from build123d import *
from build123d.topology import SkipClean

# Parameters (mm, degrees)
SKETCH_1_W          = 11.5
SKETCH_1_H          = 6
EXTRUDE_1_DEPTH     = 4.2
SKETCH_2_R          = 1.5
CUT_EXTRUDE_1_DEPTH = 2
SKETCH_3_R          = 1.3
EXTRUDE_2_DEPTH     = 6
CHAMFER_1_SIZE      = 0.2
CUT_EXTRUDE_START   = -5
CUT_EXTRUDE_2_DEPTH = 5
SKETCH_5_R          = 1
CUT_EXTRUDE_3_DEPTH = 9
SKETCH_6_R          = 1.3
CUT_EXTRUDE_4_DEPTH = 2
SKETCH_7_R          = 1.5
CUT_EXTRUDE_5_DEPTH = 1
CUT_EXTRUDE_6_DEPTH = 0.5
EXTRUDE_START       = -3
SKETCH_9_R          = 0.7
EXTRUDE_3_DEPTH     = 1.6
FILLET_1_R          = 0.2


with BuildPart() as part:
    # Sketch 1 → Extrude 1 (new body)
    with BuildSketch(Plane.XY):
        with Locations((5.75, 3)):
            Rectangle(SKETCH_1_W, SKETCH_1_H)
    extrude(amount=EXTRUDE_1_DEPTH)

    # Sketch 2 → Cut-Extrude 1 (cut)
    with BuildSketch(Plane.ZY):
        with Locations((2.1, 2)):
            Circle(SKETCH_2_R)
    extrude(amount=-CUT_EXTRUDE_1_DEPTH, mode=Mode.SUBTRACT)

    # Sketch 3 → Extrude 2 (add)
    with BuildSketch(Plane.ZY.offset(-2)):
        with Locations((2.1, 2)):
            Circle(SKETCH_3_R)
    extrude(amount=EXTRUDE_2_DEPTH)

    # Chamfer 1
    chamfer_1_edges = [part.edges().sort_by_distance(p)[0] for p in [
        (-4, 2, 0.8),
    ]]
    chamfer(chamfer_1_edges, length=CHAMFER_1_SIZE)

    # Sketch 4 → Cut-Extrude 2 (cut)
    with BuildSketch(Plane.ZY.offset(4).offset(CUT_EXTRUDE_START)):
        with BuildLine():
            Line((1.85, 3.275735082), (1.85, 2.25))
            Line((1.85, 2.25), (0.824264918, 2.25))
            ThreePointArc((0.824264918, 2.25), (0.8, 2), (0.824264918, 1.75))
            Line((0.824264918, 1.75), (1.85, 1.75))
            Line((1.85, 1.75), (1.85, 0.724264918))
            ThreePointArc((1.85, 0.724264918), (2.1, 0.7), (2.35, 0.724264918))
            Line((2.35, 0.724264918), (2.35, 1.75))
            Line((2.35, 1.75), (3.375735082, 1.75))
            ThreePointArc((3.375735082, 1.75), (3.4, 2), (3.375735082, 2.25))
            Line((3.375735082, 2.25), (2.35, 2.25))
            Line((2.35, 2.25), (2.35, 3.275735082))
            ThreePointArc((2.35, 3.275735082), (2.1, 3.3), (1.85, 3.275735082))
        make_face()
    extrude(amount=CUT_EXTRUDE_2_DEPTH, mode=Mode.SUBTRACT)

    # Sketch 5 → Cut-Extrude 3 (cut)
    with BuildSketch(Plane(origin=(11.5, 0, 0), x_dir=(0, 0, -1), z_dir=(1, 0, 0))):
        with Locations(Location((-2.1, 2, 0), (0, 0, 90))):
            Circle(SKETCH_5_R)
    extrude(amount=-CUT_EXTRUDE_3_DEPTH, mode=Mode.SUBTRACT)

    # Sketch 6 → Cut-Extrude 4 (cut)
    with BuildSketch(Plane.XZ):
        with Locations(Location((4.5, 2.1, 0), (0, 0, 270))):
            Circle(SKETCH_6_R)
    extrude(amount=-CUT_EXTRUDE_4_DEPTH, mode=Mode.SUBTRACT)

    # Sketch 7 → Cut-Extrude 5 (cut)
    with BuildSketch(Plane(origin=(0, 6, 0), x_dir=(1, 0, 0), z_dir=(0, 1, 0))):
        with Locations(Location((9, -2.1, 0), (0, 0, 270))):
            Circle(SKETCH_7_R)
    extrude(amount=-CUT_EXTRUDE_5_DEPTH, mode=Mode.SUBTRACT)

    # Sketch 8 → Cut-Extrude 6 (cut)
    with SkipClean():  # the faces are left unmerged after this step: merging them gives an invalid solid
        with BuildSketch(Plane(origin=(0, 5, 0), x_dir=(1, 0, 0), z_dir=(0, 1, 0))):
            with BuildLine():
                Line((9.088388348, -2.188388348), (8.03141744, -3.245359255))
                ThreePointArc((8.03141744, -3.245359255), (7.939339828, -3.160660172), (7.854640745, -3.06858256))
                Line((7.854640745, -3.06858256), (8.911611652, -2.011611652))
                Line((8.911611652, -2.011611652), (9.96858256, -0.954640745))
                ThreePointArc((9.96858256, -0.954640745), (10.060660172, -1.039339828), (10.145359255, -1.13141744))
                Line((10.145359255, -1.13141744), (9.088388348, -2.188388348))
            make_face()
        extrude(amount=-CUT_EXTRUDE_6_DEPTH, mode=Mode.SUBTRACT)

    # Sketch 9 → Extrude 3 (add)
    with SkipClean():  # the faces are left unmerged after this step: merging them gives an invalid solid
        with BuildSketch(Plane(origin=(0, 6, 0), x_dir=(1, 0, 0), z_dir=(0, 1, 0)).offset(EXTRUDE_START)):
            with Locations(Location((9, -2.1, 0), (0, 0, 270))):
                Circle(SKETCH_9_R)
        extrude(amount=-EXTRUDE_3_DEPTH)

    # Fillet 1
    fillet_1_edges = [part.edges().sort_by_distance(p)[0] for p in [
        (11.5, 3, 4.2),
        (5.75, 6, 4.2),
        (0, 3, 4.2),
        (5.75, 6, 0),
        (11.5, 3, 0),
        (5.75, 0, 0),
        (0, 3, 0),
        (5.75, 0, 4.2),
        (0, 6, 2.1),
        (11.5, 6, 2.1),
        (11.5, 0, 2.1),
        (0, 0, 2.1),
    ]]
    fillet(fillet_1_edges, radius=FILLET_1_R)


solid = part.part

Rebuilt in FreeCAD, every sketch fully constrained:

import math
import FreeCAD as App
import Part
import Sketcher

V = App.Vector
Q = App.Units.Quantity


def edges_at(feature, points):
    """Names of the edges that pass closest to the given points."""
    edges = feature.Shape.Edges
    near = lambda p: min(range(len(edges)), key=lambda i: edges[i].distToShape(Part.Vertex(*p))[0])
    return sorted({f"Edge{near(p) + 1}" for p in points})


def add_polygon(sketch, points):
    """Adds a closed chain of lines whose ends are joined by coincident constraints."""
    first, n = sketch.GeometryCount, len(points)
    for a, b in zip(points, points[1:] + points[:1]):
        sketch.addGeometry(Part.LineSegment(App.Vector(*a, 0), App.Vector(*b, 0)), False)
    for i in range(n):
        sketch.addConstraint(Sketcher.Constraint("Coincident", first + i, 2, first + (i + 1) % n, 1))

doc = App.newDocument("Part")
body = doc.addObject("PartDesign::Body", "Body")

# Sketch on XY plane
sketch1 = doc.addObject("Sketcher::SketchObject", "Sketch")
body.addObject(sketch1)
sketch1.AttachmentSupport = (doc.XY_Plane, [""])
sketch1.MapMode = "FlatFace"
add_polygon(sketch1, [(0, 6), (0, 0), (12, 0), (12, 6)])  # lines 0-3
sketch1.addConstraint([
    Sketcher.Constraint("Vertical", 0),
    Sketcher.Constraint("Horizontal", 1),
    Sketcher.Constraint("Vertical", 2),
    Sketcher.Constraint("Horizontal", 3),
    Sketcher.Constraint("Coincident", 0, 2, -1, 1),
    Sketcher.Constraint("DistanceY", 0, 2, 0, 1, 6.0),
    Sketcher.Constraint("DistanceX", 1, 1, 1, 2, 11.5),
])
pad1 = doc.addObject("PartDesign::Pad", "Pad")
body.addObject(pad1)
pad1.Profile = sketch1
pad1.Length = 4.2

# Sketch on YZ plane
sketch2 = doc.addObject("Sketcher::SketchObject", "Sketch001")
body.addObject(sketch2)
sketch2.AttachmentSupport = (doc.YZ_Plane, [""])
sketch2.MapMode = "FlatFace"
sketch2.addGeometry(Part.Circle(V(2, 2.1, 0), V(0, 0, 1), 1.5), False)
sketch2.addConstraint([
    Sketcher.Constraint("Diameter", 0, 3.0),
    Sketcher.Constraint("DistanceX", -1, 1, 0, 3, 2.0),
    Sketcher.Constraint("DistanceY", -1, 1, 0, 3, 2.1),
])
pocket1 = doc.addObject("PartDesign::Pocket", "Pocket")
body.addObject(pocket1)
pocket1.Profile = sketch2
pocket1.Length = 2
pocket1.Reversed = True

# Sketch on YZ plane
sketch3 = doc.addObject("Sketcher::SketchObject", "Sketch002")
body.addObject(sketch3)
sketch3.AttachmentSupport = (doc.YZ_Plane, [""])
sketch3.MapMode = "FlatFace"
sketch3.AttachmentOffset = App.Placement(V(0, 0, 2), App.Rotation())
sketch3.addGeometry(Part.Circle(V(2, 2.1, 0), V(0, 0, 1), 1.3), False)
sketch3.addConstraint([
    Sketcher.Constraint("Diameter", 0, 2.6),
    Sketcher.Constraint("DistanceX", -1, 1, 0, 3, 2.0),
    Sketcher.Constraint("DistanceY", -1, 1, 0, 3, 2.1),
])
pad2 = doc.addObject("PartDesign::Pad", "Pad001")
body.addObject(pad2)
pad2.Profile = sketch3
pad2.Length = 6
pad2.Reversed = True
doc.recompute()

chamfer = doc.addObject("PartDesign::Chamfer", "Chamfer")
body.addObject(chamfer)
chamfer.Base = (pad2, edges_at(pad2, [(-4, 2, 0.8)]))
chamfer.Size = 0.2

# Sketch on YZ plane
sketch4 = doc.addObject("Sketcher::SketchObject", "Sketch003")
body.addObject(sketch4)
sketch4.AttachmentSupport = (doc.YZ_Plane, [""])
sketch4.MapMode = "FlatFace"
sketch4.AttachmentOffset = App.Placement(V(0, 0, 1), App.Rotation())
sketch4.addGeometry([
    Part.LineSegment(V(3.3, 1.9, 0), V(2.2, 1.9, 0)),  # 0
    Part.LineSegment(V(2.2, 1.9, 0), V(2.2, 0.8, 0)),  # 1
    Part.ArcOfCircle(Part.Circle(V(2, 2.1, 0), V(0, 0, 1), 1.3), math.radians(-101), math.radians(-79)),  # 2
    Part.LineSegment(V(1.8, 0.8, 0), V(1.8, 1.9, 0)),  # 3
    Part.LineSegment(V(1.8, 1.9, 0), V(0.7, 1.9, 0)),  # 4
    Part.ArcOfCircle(Part.Circle(V(2, 2.1, 0), V(0, 0, 1), 1.3), math.radians(169), math.radians(191)),  # 5
    Part.LineSegment(V(0.7, 2.4, 0), V(1.8, 2.4, 0)),  # 6
    Part.LineSegment(V(1.8, 2.4, 0), V(1.8, 3.4, 0)),  # 7
    Part.ArcOfCircle(Part.Circle(V(2, 2.1, 0), V(0, 0, 1), 1.3), math.radians(79), math.radians(101)),  # 8
    Part.LineSegment(V(2.2, 3.4, 0), V(2.2, 2.4, 0)),  # 9
    Part.LineSegment(V(2.2, 2.4, 0), V(3.3, 2.4, 0)),  # 10
    Part.ArcOfCircle(Part.Circle(V(2, 2.1, 0), V(0, 0, 1), 1.3), math.radians(-11), math.radians(11)),  # 11
], False)
sketch4.addConstraint([
    Sketcher.Constraint("Coincident", 0, 2, 1, 1),
    Sketcher.Constraint("Coincident", 1, 2, 2, 2),
    Sketcher.Constraint("Coincident", 2, 1, 3, 1),
    Sketcher.Constraint("Coincident", 3, 2, 4, 1),
    Sketcher.Constraint("Coincident", 4, 2, 5, 2),
    Sketcher.Constraint("Coincident", 5, 1, 6, 1),
    Sketcher.Constraint("Coincident", 6, 2, 7, 1),
    Sketcher.Constraint("Coincident", 7, 2, 8, 2),
    Sketcher.Constraint("Coincident", 8, 1, 9, 1),
    Sketcher.Constraint("Coincident", 9, 2, 10, 1),
    Sketcher.Constraint("Coincident", 10, 2, 11, 2),
    Sketcher.Constraint("Coincident", 11, 1, 0, 1),
    Sketcher.Constraint("Horizontal", 0),
    Sketcher.Constraint("Vertical", 1),
    Sketcher.Constraint("Vertical", 3),
    Sketcher.Constraint("Horizontal", 4),
    Sketcher.Constraint("Horizontal", 6),
    Sketcher.Constraint("Vertical", 7),
    Sketcher.Constraint("Vertical", 9),
    Sketcher.Constraint("Horizontal", 10),
    Sketcher.Constraint("Coincident", 5, 3, 2, 3),
    Sketcher.Constraint("Coincident", 8, 3, 2, 3),
    Sketcher.Constraint("Coincident", 11, 3, 2, 3),
    Sketcher.Constraint("Equal", 2, 5),
    Sketcher.Constraint("Equal", 5, 8),
    Sketcher.Constraint("Equal", 8, 11),
    Sketcher.Constraint("Horizontal", 1, 2, 2, 1),
    Sketcher.Constraint("Horizontal", 0, 2, 3, 2),
    Sketcher.Constraint("Horizontal", 7, 2, 8, 1),
    Sketcher.Constraint("Horizontal", 6, 2, 9, 2),
    Sketcher.Constraint("Vertical", 4, 2, 5, 1),
    Sketcher.Constraint("Vertical", 3, 2, 6, 2),
    Sketcher.Constraint("Equal", 10, 1),
    Sketcher.Constraint("Radius", 2, 1.3),
    Sketcher.Constraint("DistanceX", -1, 1, 2, 3, 2.0),
    Sketcher.Constraint("DistanceY", -1, 1, 2, 3, 2.1),
    Sketcher.Constraint("DistanceX", 2, 1, 1, 2, 0.5),
])
pocket2 = doc.addObject("PartDesign::Pocket", "Pocket001")
body.addObject(pocket2)
pocket2.Profile = sketch4
pocket2.Length = 5

# Sketch on YZ plane
sketch5 = doc.addObject("Sketcher::SketchObject", "Sketch004")
body.addObject(sketch5)
sketch5.AttachmentSupport = (doc.YZ_Plane, [""])
sketch5.MapMode = "FlatFace"
sketch5.AttachmentOffset = App.Placement(V(0, 0, 11.5), App.Rotation())
sketch5.addGeometry(Part.Circle(V(2, 2.1, 0), V(0, 0, 1), 1), False)
sketch5.addConstraint([
    Sketcher.Constraint("Diameter", 0, 2.0),
    Sketcher.Constraint("DistanceX", -1, 1, 0, 3, 2.0),
    Sketcher.Constraint("DistanceY", -1, 1, 0, 3, 2.1),
])
pocket3 = doc.addObject("PartDesign::Pocket", "Pocket002")
body.addObject(pocket3)
pocket3.Profile = sketch5
pocket3.Length = 9

# Sketch on XZ plane
sketch6 = doc.addObject("Sketcher::SketchObject", "Sketch005")
body.addObject(sketch6)
sketch6.AttachmentSupport = (doc.XZ_Plane, [""])
sketch6.MapMode = "FlatFace"
sketch6.addGeometry(Part.Circle(V(4.5, 2.1, 0), V(0, 0, 1), 1.3), False)
sketch6.addConstraint([
    Sketcher.Constraint("Diameter", 0, 2.6),
    Sketcher.Constraint("DistanceX", -1, 1, 0, 3, 4.5),
    Sketcher.Constraint("DistanceY", -1, 1, 0, 3, 2.1),
])
pocket4 = doc.addObject("PartDesign::Pocket", "Pocket003")
body.addObject(pocket4)
pocket4.Profile = sketch6
pocket4.Length = 2

# Sketch on XZ plane
sketch7 = doc.addObject("Sketcher::SketchObject", "Sketch006")
body.addObject(sketch7)
sketch7.AttachmentSupport = (doc.XZ_Plane, [""])
sketch7.MapMode = "FlatFace"
sketch7.AttachmentOffset = App.Placement(V(0, 0, -6), App.Rotation())
sketch7.addGeometry(Part.Circle(V(9, 2.1, 0), V(0, 0, 1), 1.5), False)
sketch7.addConstraint([
    Sketcher.Constraint("Diameter", 0, 3.0),
    Sketcher.Constraint("DistanceX", -1, 1, 0, 3, 9.0),
    Sketcher.Constraint("DistanceY", -1, 1, 0, 3, 2.1),
])
pocket5 = doc.addObject("PartDesign::Pocket", "Pocket004")
body.addObject(pocket5)
pocket5.Profile = sketch7
pocket5.Length = 1
pocket5.Reversed = True

# Sketch on XZ plane
sketch8 = doc.addObject("Sketcher::SketchObject", "Sketch007")
body.addObject(sketch8)
sketch8.AttachmentSupport = (doc.XZ_Plane, [""])
sketch8.MapMode = "FlatFace"
sketch8.AttachmentOffset = App.Placement(V(0, 0, -5), App.Rotation())
sketch8.addGeometry([
    Part.LineSegment(V(8.03, 3.25, 0), V(9.09, 2.19, 0)),  # 0
    Part.LineSegment(V(9.09, 2.19, 0), V(10.15, 1.13, 0)),  # 1
    Part.ArcOfCircle(Part.Circle(V(9, 2.1, 0), V(0, 0, 1), 1.5), math.radians(-49.78), math.radians(-40.22)),  # 2
    Part.LineSegment(V(9.97, 0.95, 0), V(8.91, 2.01, 0)),  # 3
    Part.LineSegment(V(8.91, 2.01, 0), V(7.85, 3.07, 0)),  # 4
    Part.ArcOfCircle(Part.Circle(V(9, 2.1, 0), V(0, 0, 1), 1.5), math.radians(130.22), math.radians(139.78)),  # 5
], False)
sketch8.addConstraint([
    Sketcher.Constraint("Coincident", 0, 2, 1, 1),
    Sketcher.Constraint("Coincident", 1, 2, 2, 2),
    Sketcher.Constraint("Coincident", 2, 1, 3, 1),
    Sketcher.Constraint("Coincident", 3, 2, 4, 1),
    Sketcher.Constraint("Coincident", 4, 2, 5, 2),
    Sketcher.Constraint("Coincident", 5, 1, 0, 1),
    Sketcher.Constraint("Coincident", 5, 3, 2, 3),
    Sketcher.Constraint("Equal", 2, 5),
    Sketcher.Constraint("Parallel", 0, 1),
    Sketcher.Constraint("Parallel", 1, 3),
    Sketcher.Constraint("Parallel", 3, 4),
    Sketcher.Constraint("Equal", 0, 1),
    Sketcher.Constraint("Equal", 1, 3),
    Sketcher.Constraint("Equal", 3, 4),
    Sketcher.Constraint("Radius", 2, 1.5),
    Sketcher.Constraint("Angle", 0, Q("-45 deg")),
    Sketcher.Constraint("DistanceX", -1, 1, 2, 3, 9.0),
    Sketcher.Constraint("DistanceY", -1, 1, 2, 3, 2.1),
    Sketcher.Constraint("DistanceX", -1, 1, 0, 2, 9.088388),
])
pocket6 = doc.addObject("PartDesign::Pocket", "Pocket005")
body.addObject(pocket6)
pocket6.Profile = sketch8
pocket6.Length = 0.5
pocket6.Reversed = True

# Sketch on XZ plane
sketch9 = doc.addObject("Sketcher::SketchObject", "Sketch008")
body.addObject(sketch9)
sketch9.AttachmentSupport = (doc.XZ_Plane, [""])
sketch9.MapMode = "FlatFace"
sketch9.AttachmentOffset = App.Placement(V(0, 0, -3), App.Rotation())
sketch9.addGeometry(Part.Circle(V(9, 2.1, 0), V(0, 0, 1), 0.7), False)
sketch9.addConstraint([
    Sketcher.Constraint("Diameter", 0, 1.4),
    Sketcher.Constraint("DistanceX", -1, 1, 0, 3, 9.0),
    Sketcher.Constraint("DistanceY", -1, 1, 0, 3, 2.1),
])
pad3 = doc.addObject("PartDesign::Pad", "Pad002")
body.addObject(pad3)
pad3.Profile = sketch9
pad3.Length = 1.6
doc.recompute()

fillet = doc.addObject("PartDesign::Fillet", "Fillet")
body.addObject(fillet)
fillet.Base = (pad3, edges_at(pad3, [
    (11.5, 3, 4.2),
    (5.75, 6, 4.2),
    (0, 3, 4.2),
    (5.75, 6, 0),
    (11.5, 3, 0),
    (5.75, 0, 0),
    (0, 3, 0),
    (5.75, 0, 4.2),
    (0, 6, 2.1),
    (11.5, 6, 2.1),
    (11.5, 0, 2.1),
    (0, 0, 2.1),
]))
fillet.Radius = 0.2

doc.recompute()
